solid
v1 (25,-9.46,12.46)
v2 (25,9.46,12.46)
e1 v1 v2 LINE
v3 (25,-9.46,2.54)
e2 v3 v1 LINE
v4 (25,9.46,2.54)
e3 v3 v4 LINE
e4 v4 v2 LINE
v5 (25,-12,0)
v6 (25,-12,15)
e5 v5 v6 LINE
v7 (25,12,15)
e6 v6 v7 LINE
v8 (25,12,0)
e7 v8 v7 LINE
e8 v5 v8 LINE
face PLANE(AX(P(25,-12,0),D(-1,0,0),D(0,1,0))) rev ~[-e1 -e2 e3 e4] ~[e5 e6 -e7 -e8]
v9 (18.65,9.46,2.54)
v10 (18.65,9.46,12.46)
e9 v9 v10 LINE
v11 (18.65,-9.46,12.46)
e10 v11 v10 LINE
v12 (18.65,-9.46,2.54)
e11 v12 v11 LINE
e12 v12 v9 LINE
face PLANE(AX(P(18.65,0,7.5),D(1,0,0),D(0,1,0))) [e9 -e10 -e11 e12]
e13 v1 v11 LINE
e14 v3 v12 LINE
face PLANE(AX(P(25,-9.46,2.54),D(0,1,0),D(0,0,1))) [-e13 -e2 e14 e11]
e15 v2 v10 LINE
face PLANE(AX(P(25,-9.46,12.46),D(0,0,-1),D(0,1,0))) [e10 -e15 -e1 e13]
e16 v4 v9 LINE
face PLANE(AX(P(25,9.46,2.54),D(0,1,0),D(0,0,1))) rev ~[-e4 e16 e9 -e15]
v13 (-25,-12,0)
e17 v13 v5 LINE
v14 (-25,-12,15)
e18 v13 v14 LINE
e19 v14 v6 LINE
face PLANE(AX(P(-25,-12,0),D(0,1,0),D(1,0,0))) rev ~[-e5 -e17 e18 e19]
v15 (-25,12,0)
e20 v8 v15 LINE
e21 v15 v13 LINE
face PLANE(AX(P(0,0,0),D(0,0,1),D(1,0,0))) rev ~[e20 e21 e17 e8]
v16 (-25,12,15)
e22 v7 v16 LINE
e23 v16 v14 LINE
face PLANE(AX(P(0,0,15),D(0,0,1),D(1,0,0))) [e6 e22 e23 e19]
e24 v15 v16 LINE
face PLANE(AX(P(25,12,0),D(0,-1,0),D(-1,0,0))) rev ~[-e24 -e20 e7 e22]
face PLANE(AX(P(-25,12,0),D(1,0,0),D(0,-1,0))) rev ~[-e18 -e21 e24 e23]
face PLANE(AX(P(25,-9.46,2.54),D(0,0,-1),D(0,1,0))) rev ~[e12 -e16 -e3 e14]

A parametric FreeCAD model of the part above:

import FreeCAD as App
import Part
import Sketcher
from FreeCAD import Vector

doc = App.newDocument("Part")
params = doc.addObject("Spreadsheet::Sheet", "Params")
for row, (alias, value) in enumerate([
    ("sketch1_width", "50 mm"),
    ("sketch1_height", "24 mm"),
    ("pad1_length", "15 mm"),
    ("sketch2_width", "18.92 mm"),
    ("sketch2_height", "9.92 mm"),
    ("pocket1_length", "6.35 mm"),
], start=1):
    params.set(f"A{row}", alias)
    params.set(f"B{row}", "=" + value)
    params.setAlias(f"B{row}", alias)

body = doc.addObject("PartDesign::Body", "Body")

sketch1 = doc.addObject("Sketcher::SketchObject", "Sketch")
body.addObject(sketch1)
sketch1.AttachmentSupport = (doc.XY_Plane, [""])
sketch1.MapMode = "FlatFace"
sketch1.addGeometry(Part.LineSegment(Vector(-25, 12, 0), Vector(-25, -12, 0)), False)
sketch1.addGeometry(Part.LineSegment(Vector(-25, -12, 0), Vector(25, -12, 0)), False)
sketch1.addGeometry(Part.LineSegment(Vector(25, -12, 0), Vector(25, 12, 0)), False)
sketch1.addGeometry(Part.LineSegment(Vector(25, 12, 0), Vector(-25, 12, 0)), False)
sketch1.addConstraint(Sketcher.Constraint("Coincident", 0, 2, 1, 1))
sketch1.addConstraint(Sketcher.Constraint("Coincident", 1, 2, 2, 1))
sketch1.addConstraint(Sketcher.Constraint("Coincident", 2, 2, 3, 1))
sketch1.addConstraint(Sketcher.Constraint("Coincident", 3, 2, 0, 1))
sketch1.addConstraint(Sketcher.Constraint("Vertical", 0))
sketch1.addConstraint(Sketcher.Constraint("Horizontal", 1))
sketch1.addConstraint(Sketcher.Constraint("Vertical", 2))
sketch1.addConstraint(Sketcher.Constraint("Horizontal", 3))
sketch1.addConstraint(Sketcher.Constraint("Symmetric", 0, 2, 2, 2, -1, 1))
sketch1.addConstraint(Sketcher.Constraint("DistanceX", 1, 1, 1, 2, 50.0))
sketch1.addConstraint(Sketcher.Constraint("DistanceY", 0, 2, 0, 1, 24.0))
sketch1.setExpression("Constraints[9]", "Params.sketch1_width")
sketch1.setExpression("Constraints[10]", "Params.sketch1_height")
pad1 = doc.addObject("PartDesign::Pad", "Pad")
body.addObject(pad1)
pad1.Profile = sketch1
pad1.setExpression("Length", "Params.pad1_length")

sketch2 = doc.addObject("Sketcher::SketchObject", "Sketch001")
body.addObject(sketch2)
sketch2.AttachmentSupport = (doc.YZ_Plane, [""])
sketch2.MapMode = "FlatFace"
sketch2.AttachmentOffset = App.Placement(Vector(0, 0, 25), App.Rotation())
sketch2.addGeometry(Part.LineSegment(Vector(-9, 12, 0), Vector(-9, 3, 0)), False)
sketch2.addGeometry(Part.LineSegment(Vector(-9, 3, 0), Vector(9, 3, 0)), False)
sketch2.addGeometry(Part.LineSegment(Vector(9, 3, 0), Vector(9, 12, 0)), False)
sketch2.addGeometry(Part.LineSegment(Vector(9, 12, 0), Vector(-9, 12, 0)), False)
sketch2.addConstraint(Sketcher.Constraint("Coincident", 0, 2, 1, 1))
sketch2.addConstraint(Sketcher.Constraint("Coincident", 1, 2, 2, 1))
sketch2.addConstraint(Sketcher.Constraint("Coincident", 2, 2, 3, 1))
sketch2.addConstraint(Sketcher.Constraint("Coincident", 3, 2, 0, 1))
sketch2.addConstraint(Sketcher.Constraint("Vertical", 0))
sketch2.addConstraint(Sketcher.Constraint("Horizontal", 1))
sketch2.addConstraint(Sketcher.Constraint("Vertical", 2))
sketch2.addConstraint(Sketcher.Constraint("Horizontal", 3))
sketch2.addConstraint(Sketcher.Constraint("DistanceX", 1, 1, 1, 2, 18.92))
sketch2.addConstraint(Sketcher.Constraint("DistanceY", 0, 2, 0, 1, 9.92))
sketch2.addConstraint(Sketcher.Constraint("DistanceX", 0, 2, -1, 1, 9.46))
sketch2.addConstraint(Sketcher.Constraint("DistanceY", -1, 1, 0, 2, 2.54))
sketch2.setExpression("Constraints[8]", "Params.sketch2_width")
sketch2.setExpression("Constraints[9]", "Params.sketch2_height")
pocket1 = doc.addObject("PartDesign::Pocket", "Pocket")
body.addObject(pocket1)
pocket1.Profile = sketch2
pocket1.setExpression("Length", "Params.pocket1_length")

doc.recompute()
